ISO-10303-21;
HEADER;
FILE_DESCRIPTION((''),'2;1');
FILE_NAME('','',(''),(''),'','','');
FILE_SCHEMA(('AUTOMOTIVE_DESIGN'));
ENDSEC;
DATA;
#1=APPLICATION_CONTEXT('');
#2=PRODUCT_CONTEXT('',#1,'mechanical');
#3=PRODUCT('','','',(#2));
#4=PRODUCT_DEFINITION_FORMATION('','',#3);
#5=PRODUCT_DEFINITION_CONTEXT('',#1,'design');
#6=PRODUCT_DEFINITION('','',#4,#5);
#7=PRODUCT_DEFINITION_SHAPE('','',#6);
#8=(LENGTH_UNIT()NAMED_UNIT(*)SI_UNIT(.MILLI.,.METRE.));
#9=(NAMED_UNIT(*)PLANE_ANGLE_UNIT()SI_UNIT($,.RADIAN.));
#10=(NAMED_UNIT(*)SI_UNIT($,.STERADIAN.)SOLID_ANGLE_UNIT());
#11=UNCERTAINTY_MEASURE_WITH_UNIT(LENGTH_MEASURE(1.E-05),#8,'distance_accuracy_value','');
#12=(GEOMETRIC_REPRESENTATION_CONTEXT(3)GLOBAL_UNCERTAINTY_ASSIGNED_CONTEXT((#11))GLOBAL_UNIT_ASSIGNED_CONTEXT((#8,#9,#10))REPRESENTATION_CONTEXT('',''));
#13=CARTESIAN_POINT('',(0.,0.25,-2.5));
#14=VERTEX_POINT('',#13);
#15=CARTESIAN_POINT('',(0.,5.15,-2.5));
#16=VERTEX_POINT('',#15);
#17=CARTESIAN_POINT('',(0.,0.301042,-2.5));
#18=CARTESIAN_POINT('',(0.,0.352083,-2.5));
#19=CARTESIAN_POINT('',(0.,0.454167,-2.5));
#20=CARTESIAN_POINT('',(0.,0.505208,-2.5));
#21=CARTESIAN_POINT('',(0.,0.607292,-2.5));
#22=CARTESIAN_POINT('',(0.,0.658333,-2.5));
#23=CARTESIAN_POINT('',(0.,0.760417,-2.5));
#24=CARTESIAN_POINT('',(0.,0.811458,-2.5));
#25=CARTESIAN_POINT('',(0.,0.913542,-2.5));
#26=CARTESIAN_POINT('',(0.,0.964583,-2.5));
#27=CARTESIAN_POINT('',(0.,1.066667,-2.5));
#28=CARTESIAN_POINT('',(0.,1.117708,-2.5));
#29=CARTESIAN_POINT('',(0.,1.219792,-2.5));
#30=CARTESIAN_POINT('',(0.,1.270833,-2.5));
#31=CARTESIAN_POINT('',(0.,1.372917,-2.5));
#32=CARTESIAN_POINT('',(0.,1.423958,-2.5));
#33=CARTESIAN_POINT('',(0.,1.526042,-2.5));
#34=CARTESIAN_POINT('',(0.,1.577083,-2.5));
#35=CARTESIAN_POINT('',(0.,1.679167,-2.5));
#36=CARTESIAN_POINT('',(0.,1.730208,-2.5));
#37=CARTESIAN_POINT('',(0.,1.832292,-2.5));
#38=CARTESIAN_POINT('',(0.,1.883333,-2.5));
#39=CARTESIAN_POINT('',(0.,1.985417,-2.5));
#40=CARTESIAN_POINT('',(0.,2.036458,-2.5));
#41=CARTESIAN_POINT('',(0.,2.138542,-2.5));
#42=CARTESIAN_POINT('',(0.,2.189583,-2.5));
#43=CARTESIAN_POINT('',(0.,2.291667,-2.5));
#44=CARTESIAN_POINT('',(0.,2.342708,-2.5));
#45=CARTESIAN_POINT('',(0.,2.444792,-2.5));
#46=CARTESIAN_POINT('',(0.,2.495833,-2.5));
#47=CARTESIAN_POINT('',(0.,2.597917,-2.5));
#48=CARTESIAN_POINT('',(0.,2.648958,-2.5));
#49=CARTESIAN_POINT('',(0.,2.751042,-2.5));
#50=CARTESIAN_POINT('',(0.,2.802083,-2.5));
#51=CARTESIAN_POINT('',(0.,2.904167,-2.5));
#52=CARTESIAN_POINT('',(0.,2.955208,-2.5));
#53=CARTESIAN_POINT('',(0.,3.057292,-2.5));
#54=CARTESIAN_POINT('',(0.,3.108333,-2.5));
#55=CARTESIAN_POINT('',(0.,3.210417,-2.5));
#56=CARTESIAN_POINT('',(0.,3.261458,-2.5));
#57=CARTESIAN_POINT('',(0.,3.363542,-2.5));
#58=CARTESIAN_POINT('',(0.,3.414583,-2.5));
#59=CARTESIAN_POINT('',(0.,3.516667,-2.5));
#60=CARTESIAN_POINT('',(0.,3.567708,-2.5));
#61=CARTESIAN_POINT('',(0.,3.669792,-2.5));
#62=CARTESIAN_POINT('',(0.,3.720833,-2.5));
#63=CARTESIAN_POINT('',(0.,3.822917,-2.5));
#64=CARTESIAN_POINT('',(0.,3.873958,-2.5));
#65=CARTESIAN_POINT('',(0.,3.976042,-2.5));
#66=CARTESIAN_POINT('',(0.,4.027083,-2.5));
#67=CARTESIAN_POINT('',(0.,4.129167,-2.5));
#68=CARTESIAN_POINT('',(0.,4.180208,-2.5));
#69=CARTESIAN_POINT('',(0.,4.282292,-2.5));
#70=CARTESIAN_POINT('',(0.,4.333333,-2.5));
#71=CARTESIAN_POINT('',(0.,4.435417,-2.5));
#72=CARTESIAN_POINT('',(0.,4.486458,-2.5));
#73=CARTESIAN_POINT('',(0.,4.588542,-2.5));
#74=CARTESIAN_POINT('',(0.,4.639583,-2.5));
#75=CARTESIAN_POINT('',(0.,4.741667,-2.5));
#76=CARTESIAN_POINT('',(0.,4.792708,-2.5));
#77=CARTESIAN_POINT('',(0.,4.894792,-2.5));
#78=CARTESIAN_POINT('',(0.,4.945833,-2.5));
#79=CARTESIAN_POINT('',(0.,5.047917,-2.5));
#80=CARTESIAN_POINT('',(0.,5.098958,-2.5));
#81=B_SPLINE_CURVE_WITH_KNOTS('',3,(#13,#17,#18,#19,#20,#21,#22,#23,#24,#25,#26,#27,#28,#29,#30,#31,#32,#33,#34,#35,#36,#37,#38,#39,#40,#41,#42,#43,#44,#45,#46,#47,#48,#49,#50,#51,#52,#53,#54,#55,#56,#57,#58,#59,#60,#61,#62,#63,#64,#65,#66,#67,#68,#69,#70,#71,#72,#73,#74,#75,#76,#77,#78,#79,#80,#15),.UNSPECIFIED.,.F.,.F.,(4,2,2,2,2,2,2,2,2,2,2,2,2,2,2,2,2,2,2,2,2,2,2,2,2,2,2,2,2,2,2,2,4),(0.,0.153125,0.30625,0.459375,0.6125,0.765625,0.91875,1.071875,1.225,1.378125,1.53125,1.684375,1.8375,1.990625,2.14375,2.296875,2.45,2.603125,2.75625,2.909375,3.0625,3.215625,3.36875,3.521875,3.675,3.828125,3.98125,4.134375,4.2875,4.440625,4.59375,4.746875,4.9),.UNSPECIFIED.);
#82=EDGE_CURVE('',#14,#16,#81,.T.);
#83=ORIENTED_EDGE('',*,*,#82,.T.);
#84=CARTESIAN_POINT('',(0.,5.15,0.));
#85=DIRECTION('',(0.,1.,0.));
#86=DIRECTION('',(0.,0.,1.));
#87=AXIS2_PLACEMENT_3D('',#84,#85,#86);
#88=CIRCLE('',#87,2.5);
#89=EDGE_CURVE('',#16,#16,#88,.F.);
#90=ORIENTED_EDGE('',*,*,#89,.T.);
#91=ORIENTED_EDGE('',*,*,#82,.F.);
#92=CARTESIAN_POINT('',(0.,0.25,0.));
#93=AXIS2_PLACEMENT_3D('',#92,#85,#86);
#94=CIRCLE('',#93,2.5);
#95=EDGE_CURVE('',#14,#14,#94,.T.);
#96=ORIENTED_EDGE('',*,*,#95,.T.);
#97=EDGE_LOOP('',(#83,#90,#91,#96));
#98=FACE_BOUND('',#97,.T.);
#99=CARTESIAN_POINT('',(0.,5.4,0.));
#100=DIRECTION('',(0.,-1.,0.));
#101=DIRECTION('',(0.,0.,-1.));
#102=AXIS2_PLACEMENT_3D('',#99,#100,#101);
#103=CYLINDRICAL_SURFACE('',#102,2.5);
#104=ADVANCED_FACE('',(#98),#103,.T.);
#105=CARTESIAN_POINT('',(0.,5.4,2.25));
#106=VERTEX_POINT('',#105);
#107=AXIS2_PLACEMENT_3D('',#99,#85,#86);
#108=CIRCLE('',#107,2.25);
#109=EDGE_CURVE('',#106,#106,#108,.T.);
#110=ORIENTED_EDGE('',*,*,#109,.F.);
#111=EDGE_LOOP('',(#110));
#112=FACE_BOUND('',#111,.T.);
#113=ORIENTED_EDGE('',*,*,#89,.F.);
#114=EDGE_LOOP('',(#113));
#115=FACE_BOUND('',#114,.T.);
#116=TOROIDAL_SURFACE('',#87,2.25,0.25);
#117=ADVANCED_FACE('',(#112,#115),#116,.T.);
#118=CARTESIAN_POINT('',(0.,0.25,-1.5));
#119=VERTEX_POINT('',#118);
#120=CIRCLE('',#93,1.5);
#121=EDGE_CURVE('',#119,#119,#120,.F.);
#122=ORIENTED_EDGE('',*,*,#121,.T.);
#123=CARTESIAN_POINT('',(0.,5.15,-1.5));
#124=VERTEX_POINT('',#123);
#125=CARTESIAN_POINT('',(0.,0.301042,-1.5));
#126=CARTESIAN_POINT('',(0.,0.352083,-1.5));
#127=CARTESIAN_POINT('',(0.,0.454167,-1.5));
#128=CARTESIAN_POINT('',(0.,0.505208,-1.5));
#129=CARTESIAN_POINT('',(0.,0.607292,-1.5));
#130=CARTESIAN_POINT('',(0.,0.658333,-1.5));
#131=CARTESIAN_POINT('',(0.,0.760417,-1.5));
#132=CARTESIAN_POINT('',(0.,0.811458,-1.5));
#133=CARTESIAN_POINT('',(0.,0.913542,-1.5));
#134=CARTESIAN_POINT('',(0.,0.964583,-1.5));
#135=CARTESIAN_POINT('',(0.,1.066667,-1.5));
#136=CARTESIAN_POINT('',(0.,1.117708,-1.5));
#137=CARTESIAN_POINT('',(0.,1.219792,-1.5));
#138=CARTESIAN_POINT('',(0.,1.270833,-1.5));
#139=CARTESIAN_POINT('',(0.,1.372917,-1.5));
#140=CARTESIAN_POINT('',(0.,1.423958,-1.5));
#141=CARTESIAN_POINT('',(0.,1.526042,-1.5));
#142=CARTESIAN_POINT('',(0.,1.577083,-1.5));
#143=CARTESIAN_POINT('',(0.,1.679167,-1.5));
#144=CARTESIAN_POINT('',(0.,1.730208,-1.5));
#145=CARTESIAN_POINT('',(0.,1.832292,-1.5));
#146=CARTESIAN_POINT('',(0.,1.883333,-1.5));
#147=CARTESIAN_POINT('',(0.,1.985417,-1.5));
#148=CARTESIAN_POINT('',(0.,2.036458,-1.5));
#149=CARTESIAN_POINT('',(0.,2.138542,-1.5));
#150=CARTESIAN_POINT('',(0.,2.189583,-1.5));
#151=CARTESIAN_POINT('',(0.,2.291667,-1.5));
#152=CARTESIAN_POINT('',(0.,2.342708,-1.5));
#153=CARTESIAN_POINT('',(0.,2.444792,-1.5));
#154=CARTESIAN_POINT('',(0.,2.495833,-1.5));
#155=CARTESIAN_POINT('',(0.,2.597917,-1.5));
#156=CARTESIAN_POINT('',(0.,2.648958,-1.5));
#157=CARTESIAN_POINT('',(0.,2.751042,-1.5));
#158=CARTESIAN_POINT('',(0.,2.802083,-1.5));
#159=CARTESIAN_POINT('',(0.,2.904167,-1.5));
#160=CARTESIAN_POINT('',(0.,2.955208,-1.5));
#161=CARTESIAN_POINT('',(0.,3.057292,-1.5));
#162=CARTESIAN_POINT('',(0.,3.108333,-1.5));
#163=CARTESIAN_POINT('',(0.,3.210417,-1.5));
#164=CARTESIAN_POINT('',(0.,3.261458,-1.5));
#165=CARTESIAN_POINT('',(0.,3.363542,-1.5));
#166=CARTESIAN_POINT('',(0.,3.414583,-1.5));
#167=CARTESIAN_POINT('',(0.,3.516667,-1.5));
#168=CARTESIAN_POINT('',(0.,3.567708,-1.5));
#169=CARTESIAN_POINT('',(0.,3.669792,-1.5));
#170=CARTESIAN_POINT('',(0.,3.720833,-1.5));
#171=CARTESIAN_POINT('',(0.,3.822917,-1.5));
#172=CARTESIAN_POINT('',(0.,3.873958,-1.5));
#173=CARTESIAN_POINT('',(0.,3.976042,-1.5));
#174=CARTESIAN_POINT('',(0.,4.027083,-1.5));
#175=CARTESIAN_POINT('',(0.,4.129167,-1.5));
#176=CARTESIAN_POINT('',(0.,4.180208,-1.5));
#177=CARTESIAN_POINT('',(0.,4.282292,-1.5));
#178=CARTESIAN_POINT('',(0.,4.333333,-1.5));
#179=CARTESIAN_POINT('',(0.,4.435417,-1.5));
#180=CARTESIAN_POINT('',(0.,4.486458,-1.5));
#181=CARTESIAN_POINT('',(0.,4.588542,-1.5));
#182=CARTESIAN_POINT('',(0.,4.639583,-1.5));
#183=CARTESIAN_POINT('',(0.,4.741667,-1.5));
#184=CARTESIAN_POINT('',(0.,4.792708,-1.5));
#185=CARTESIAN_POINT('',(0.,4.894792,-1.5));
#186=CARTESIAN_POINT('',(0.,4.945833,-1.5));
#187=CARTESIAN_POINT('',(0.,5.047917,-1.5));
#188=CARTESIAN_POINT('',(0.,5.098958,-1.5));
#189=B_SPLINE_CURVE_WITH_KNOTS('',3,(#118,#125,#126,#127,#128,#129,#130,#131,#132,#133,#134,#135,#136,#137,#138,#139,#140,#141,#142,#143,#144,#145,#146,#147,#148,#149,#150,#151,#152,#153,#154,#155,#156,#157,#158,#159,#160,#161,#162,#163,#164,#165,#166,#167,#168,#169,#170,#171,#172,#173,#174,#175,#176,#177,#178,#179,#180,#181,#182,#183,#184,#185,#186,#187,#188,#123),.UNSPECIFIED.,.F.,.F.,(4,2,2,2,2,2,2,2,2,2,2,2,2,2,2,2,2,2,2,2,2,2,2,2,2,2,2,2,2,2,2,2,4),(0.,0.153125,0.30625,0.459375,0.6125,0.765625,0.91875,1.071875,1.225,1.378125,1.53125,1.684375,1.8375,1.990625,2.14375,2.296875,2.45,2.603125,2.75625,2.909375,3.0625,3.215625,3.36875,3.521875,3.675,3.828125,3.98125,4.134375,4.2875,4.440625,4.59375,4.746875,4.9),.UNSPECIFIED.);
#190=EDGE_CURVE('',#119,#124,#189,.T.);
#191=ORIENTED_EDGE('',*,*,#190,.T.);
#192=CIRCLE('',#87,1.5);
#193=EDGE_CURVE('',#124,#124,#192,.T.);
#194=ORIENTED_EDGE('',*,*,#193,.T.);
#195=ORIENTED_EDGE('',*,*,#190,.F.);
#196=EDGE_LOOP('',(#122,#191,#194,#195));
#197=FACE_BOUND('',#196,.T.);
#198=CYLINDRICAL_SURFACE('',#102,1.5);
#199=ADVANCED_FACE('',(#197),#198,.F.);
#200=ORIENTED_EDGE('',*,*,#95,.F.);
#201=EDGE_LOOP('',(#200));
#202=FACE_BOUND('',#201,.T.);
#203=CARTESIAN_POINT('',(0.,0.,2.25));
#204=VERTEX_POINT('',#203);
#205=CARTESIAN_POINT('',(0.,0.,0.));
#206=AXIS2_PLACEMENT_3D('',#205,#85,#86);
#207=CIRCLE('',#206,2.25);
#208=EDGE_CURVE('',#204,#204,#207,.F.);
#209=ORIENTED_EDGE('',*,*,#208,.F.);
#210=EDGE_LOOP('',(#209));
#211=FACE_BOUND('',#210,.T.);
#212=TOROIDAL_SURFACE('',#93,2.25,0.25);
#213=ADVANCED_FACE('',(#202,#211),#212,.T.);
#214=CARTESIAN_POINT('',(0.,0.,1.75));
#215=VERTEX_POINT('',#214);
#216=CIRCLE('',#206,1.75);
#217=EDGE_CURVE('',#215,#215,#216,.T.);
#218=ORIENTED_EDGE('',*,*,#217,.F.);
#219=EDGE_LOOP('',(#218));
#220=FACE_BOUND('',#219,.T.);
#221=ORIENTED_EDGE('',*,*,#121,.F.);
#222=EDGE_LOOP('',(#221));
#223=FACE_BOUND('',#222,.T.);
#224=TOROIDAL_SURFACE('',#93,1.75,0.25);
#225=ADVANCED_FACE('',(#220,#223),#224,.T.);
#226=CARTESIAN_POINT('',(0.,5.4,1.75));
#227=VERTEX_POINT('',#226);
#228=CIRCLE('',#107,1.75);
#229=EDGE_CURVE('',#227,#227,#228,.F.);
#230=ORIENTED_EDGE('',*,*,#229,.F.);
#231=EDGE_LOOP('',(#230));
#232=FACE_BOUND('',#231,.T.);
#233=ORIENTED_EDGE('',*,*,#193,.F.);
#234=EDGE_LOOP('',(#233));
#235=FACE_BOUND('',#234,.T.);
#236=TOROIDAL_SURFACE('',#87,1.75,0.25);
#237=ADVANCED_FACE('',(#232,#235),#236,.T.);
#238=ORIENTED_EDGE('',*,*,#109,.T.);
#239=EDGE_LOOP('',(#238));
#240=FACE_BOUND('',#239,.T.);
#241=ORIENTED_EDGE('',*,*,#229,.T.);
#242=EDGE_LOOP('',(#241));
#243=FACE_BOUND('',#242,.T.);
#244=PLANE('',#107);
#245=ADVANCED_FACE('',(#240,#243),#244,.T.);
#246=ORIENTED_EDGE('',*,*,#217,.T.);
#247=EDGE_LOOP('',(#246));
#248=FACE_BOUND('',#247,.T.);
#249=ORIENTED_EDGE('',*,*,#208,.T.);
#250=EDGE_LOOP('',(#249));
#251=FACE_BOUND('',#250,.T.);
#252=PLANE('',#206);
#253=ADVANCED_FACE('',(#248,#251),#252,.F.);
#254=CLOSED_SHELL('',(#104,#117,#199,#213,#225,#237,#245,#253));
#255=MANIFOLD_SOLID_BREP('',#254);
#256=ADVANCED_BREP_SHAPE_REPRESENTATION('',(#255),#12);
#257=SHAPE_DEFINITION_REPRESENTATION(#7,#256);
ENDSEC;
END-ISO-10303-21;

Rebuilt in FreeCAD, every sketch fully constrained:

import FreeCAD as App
import Part
import Sketcher

V = App.Vector
Q = App.Units.Quantity


def edges_at(feature, points):
    """Names of the edges that pass closest to the given points."""
    edges = feature.Shape.Edges
    near = lambda p: min(range(len(edges)), key=lambda i: edges[i].distToShape(Part.Vertex(*p))[0])
    return sorted({f"Edge{near(p) + 1}" for p in points})

doc = App.newDocument("Part")
body = doc.addObject("PartDesign::Body", "Body")

# Sketch on XZ plane
sketch1 = body.newObject("Sketcher::SketchObject", "Sketch")
sketch1.AttachmentSupport = (doc.getObject("XZ_Plane"), [""])
sketch1.MapMode = "FlatFace"
sketch1.addGeometry([
    Part.Circle(V(0, 0, 0), V(0, 0, 1), 2.5),
    Part.Circle(V(0, 0, 0), V(0, 0, 1), 1.5),
], False)
sketch1.addConstraint([
    Sketcher.Constraint("Coincident", 0, 3, -1, 1),
    Sketcher.Constraint("Coincident", 1, 3, -1, 1),
    Sketcher.Constraint("Diameter", 0, Q("5 mm")),
    Sketcher.Constraint("Diameter", 1, Q("3 mm")),
])
pad1 = body.newObject("PartDesign::Pad", "Pad")
pad1.Profile = sketch1
pad1.Length = 5.4
pad1.Reversed = True
doc.recompute()

fillet = body.newObject("PartDesign::Fillet", "Fillet")
fillet.Base = (pad1, edges_at(pad1, [
    (0, 0, 2.5),
    (0, 5.4, 2.5),
    (0, 0, 1.5),
    (0, 5.4, 1.5),
]))
fillet.Radius = 0.25

doc.recompute()
